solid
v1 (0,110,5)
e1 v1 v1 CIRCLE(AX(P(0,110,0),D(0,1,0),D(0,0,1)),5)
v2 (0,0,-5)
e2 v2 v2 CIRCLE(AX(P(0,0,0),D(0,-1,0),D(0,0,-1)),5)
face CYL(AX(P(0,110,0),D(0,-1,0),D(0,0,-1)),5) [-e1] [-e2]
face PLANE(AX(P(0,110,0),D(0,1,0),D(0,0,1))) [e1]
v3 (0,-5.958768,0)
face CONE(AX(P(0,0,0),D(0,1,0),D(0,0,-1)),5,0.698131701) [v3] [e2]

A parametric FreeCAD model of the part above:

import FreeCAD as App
import Part
import Sketcher
from FreeCAD import Vector
Q = App.Units.Quantity

doc = App.newDocument("Part")
body = doc.addObject("PartDesign::Body", "Body")

sketch1 = body.newObject("Sketcher::SketchObject", "Sketch")
sketch1.AttachmentSupport = (doc.getObject("XZ_Plane"), [""])
sketch1.MapMode = "FlatFace"
sketch1.addGeometry(Part.Circle(Vector(0, 0, 0), Vector(0, 0, 1), 5), False)
sketch1.addConstraint([
    Sketcher.Constraint("Coincident", 0, 3, -1, 1),
    Sketcher.Constraint("Diameter", 0, Q("10 mm")),
])
pad1 = body.newObject("PartDesign::Pad", "Pad")
pad1.Profile = sketch1
pad1.Length = 110
pad1.Reversed = True

sketch2 = body.newObject("Sketcher::SketchObject", "Sketch001")
sketch2.AttachmentSupport = (doc.getObject("YZ_Plane"), [""])
sketch2.MapMode = "FlatFace"
sketch2.addGeometry([
    Part.LineSegment(Vector(0, 0, 0), Vector(0, 5, 0)),
    Part.LineSegment(Vector(0, 5, 0), Vector(-5.958768, 0, 0)),
    Part.LineSegment(Vector(-5.958768, 0, 0), Vector(0, 0, 0)),
], False)
sketch2.addConstraint([
    Sketcher.Constraint("Coincident", 0, 2, 1, 1),
    Sketcher.Constraint("Coincident", 1, 2, 2, 1),
    Sketcher.Constraint("Coincident", 2, 2, 0, 1),
    Sketcher.Constraint("Vertical", 0),
    Sketcher.Constraint("Horizontal", 2),
    Sketcher.Constraint("Coincident", 2, 2, -1, 1),
    Sketcher.Constraint("DistanceY", 0, 1, 0, 2, Q("5 mm")),
    Sketcher.Constraint("Angle", 1, Q("-140 deg")),
])
revolution = body.newObject("PartDesign::Revolution", "Revolution")
revolution.Profile = sketch2
revolution.ReferenceAxis = (sketch2, ["H_Axis"])
revolution.Angle = 360

doc.recompute()
